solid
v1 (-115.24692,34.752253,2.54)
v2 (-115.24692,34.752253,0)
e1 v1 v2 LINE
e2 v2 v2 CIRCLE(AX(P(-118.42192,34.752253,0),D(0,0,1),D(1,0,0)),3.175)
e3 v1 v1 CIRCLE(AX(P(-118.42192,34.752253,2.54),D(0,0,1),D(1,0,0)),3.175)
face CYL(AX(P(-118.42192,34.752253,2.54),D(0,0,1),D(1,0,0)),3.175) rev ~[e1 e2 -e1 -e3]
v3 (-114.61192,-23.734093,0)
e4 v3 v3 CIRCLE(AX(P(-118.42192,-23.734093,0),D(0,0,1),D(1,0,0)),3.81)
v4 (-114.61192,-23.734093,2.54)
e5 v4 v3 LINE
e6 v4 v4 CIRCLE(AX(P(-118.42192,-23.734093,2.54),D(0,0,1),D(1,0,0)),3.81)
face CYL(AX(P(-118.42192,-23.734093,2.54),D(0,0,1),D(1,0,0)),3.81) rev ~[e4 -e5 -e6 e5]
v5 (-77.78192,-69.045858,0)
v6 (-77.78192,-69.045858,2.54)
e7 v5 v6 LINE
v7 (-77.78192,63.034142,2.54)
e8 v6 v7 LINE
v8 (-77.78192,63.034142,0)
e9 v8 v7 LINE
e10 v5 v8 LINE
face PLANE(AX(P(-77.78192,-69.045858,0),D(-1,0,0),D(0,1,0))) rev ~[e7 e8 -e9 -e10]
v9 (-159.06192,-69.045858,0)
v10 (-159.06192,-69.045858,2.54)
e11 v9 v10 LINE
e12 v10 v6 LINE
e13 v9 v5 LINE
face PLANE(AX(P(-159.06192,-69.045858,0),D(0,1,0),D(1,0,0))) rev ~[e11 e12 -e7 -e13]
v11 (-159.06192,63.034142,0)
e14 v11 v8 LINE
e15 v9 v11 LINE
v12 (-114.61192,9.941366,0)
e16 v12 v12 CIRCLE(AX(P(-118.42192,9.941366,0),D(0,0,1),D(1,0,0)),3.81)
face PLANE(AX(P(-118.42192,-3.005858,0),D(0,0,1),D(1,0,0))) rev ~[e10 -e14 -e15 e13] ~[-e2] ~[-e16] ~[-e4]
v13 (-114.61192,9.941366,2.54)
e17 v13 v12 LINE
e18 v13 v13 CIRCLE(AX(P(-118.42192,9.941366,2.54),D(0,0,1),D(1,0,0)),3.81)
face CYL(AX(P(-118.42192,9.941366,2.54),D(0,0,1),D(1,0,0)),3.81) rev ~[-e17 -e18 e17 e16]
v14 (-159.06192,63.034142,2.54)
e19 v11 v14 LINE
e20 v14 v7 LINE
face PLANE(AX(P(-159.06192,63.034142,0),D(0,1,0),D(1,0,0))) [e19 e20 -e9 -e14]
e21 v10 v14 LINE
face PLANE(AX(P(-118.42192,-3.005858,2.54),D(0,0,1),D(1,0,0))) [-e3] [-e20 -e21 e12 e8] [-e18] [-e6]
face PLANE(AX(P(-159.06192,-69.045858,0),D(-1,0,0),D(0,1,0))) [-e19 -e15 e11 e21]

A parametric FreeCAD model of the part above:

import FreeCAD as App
import Part
import Sketcher

V = App.Vector
Q = App.Units.Quantity


def add_polygon(sketch, points):
    """Adds a closed chain of lines whose ends are joined by coincident constraints."""
    first, n = sketch.GeometryCount, len(points)
    for a, b in zip(points, points[1:] + points[:1]):
        sketch.addGeometry(Part.LineSegment(App.Vector(*a, 0), App.Vector(*b, 0)), False)
    for i in range(n):
        sketch.addConstraint(Sketcher.Constraint("Coincident", first + i, 2, first + (i + 1) % n, 1))

doc = App.newDocument("Part")
body = doc.addObject("PartDesign::Body", "Body")

# Sketch on XY plane
sketch1 = body.newObject("Sketcher::SketchObject", "Sketch")
sketch1.AttachmentSupport = (doc.getObject("XY_Plane"), [""])
sketch1.MapMode = "FlatFace"
add_polygon(sketch1, [(-159, 63), (-159, -69), (-78, -69), (-78, 63)])  # lines 0-3
sketch1.addConstraint([
    Sketcher.Constraint("Vertical", 0),
    Sketcher.Constraint("Horizontal", 1),
    Sketcher.Constraint("Vertical", 2),
    Sketcher.Constraint("Horizontal", 3),
    Sketcher.Constraint("DistanceX", 1, 1, 1, 2, Q("3.2 in")),
    Sketcher.Constraint("DistanceY", 0, 2, 0, 1, Q("5.2 in")),
    Sketcher.Constraint("DistanceX", 0, 2, -1, 1, 159.06192),
    Sketcher.Constraint("DistanceY", 0, 2, -1, 1, 69.045858),
])
pad1 = body.newObject("PartDesign::Pad", "Pad")
pad1.Profile = sketch1
pad1.Length = Q("0.1 in")

# Sketch on XY plane
sketch2 = body.newObject("Sketcher::SketchObject", "Sketch001")
sketch2.AttachmentSupport = (doc.getObject("XY_Plane"), [""])
sketch2.MapMode = "FlatFace"
sketch2.AttachmentOffset = App.Placement(V(0, 0, 0.1 * 25.4), App.Rotation())
sketch2.addGeometry(Part.Circle(V(-118.4, 34.8, 0), V(0, 0, 1), 3.2), False)
sketch2.addConstraint([
    Sketcher.Constraint("Diameter", 0, Q("0.25 in")),
    Sketcher.Constraint("DistanceX", 0, 3, -1, 1, 118.42192),
    Sketcher.Constraint("DistanceY", -1, 1, 0, 3, 34.752253),
])
pocket1 = body.newObject("PartDesign::Pocket", "Pocket")
pocket1.Profile = sketch2
pocket1.Length = Q("0.1 in")

# Sketch on XY plane
sketch3 = body.newObject("Sketcher::SketchObject", "Sketch002")
sketch3.AttachmentSupport = (doc.getObject("XY_Plane"), [""])
sketch3.MapMode = "FlatFace"
sketch3.AttachmentOffset = App.Placement(V(0, 0, 0.1 * 25.4), App.Rotation())
sketch3.addGeometry(Part.Circle(V(-118.4, -23.7, 0), V(0, 0, 1), 3.8), False)
sketch3.addConstraint([
    Sketcher.Constraint("Diameter", 0, Q("0.3 in")),
    Sketcher.Constraint("DistanceX", 0, 3, -1, 1, 118.42192),
    Sketcher.Constraint("DistanceY", 0, 3, -1, 1, 23.734093),
])
pocket2 = body.newObject("PartDesign::Pocket", "Pocket001")
pocket2.Profile = sketch3
pocket2.Length = Q("0.1 in")

# Sketch on XY plane
sketch4 = body.newObject("Sketcher::SketchObject", "Sketch003")
sketch4.AttachmentSupport = (doc.getObject("XY_Plane"), [""])
sketch4.MapMode = "FlatFace"
sketch4.AttachmentOffset = App.Placement(V(0, 0, 0.1 * 25.4), App.Rotation())
sketch4.addGeometry(Part.Circle(V(-118.4, 9.9, 0), V(0, 0, 1), 3.8), False)
sketch4.addConstraint([
    Sketcher.Constraint("Diameter", 0, Q("0.3 in")),
    Sketcher.Constraint("DistanceX", 0, 3, -1, 1, 118.42192),
    Sketcher.Constraint("DistanceY", -1, 1, 0, 3, 9.941366),
])
pocket3 = body.newObject("PartDesign::Pocket", "Pocket002")
pocket3.Profile = sketch4
pocket3.Length = Q("0.1 in")

doc.recompute()
